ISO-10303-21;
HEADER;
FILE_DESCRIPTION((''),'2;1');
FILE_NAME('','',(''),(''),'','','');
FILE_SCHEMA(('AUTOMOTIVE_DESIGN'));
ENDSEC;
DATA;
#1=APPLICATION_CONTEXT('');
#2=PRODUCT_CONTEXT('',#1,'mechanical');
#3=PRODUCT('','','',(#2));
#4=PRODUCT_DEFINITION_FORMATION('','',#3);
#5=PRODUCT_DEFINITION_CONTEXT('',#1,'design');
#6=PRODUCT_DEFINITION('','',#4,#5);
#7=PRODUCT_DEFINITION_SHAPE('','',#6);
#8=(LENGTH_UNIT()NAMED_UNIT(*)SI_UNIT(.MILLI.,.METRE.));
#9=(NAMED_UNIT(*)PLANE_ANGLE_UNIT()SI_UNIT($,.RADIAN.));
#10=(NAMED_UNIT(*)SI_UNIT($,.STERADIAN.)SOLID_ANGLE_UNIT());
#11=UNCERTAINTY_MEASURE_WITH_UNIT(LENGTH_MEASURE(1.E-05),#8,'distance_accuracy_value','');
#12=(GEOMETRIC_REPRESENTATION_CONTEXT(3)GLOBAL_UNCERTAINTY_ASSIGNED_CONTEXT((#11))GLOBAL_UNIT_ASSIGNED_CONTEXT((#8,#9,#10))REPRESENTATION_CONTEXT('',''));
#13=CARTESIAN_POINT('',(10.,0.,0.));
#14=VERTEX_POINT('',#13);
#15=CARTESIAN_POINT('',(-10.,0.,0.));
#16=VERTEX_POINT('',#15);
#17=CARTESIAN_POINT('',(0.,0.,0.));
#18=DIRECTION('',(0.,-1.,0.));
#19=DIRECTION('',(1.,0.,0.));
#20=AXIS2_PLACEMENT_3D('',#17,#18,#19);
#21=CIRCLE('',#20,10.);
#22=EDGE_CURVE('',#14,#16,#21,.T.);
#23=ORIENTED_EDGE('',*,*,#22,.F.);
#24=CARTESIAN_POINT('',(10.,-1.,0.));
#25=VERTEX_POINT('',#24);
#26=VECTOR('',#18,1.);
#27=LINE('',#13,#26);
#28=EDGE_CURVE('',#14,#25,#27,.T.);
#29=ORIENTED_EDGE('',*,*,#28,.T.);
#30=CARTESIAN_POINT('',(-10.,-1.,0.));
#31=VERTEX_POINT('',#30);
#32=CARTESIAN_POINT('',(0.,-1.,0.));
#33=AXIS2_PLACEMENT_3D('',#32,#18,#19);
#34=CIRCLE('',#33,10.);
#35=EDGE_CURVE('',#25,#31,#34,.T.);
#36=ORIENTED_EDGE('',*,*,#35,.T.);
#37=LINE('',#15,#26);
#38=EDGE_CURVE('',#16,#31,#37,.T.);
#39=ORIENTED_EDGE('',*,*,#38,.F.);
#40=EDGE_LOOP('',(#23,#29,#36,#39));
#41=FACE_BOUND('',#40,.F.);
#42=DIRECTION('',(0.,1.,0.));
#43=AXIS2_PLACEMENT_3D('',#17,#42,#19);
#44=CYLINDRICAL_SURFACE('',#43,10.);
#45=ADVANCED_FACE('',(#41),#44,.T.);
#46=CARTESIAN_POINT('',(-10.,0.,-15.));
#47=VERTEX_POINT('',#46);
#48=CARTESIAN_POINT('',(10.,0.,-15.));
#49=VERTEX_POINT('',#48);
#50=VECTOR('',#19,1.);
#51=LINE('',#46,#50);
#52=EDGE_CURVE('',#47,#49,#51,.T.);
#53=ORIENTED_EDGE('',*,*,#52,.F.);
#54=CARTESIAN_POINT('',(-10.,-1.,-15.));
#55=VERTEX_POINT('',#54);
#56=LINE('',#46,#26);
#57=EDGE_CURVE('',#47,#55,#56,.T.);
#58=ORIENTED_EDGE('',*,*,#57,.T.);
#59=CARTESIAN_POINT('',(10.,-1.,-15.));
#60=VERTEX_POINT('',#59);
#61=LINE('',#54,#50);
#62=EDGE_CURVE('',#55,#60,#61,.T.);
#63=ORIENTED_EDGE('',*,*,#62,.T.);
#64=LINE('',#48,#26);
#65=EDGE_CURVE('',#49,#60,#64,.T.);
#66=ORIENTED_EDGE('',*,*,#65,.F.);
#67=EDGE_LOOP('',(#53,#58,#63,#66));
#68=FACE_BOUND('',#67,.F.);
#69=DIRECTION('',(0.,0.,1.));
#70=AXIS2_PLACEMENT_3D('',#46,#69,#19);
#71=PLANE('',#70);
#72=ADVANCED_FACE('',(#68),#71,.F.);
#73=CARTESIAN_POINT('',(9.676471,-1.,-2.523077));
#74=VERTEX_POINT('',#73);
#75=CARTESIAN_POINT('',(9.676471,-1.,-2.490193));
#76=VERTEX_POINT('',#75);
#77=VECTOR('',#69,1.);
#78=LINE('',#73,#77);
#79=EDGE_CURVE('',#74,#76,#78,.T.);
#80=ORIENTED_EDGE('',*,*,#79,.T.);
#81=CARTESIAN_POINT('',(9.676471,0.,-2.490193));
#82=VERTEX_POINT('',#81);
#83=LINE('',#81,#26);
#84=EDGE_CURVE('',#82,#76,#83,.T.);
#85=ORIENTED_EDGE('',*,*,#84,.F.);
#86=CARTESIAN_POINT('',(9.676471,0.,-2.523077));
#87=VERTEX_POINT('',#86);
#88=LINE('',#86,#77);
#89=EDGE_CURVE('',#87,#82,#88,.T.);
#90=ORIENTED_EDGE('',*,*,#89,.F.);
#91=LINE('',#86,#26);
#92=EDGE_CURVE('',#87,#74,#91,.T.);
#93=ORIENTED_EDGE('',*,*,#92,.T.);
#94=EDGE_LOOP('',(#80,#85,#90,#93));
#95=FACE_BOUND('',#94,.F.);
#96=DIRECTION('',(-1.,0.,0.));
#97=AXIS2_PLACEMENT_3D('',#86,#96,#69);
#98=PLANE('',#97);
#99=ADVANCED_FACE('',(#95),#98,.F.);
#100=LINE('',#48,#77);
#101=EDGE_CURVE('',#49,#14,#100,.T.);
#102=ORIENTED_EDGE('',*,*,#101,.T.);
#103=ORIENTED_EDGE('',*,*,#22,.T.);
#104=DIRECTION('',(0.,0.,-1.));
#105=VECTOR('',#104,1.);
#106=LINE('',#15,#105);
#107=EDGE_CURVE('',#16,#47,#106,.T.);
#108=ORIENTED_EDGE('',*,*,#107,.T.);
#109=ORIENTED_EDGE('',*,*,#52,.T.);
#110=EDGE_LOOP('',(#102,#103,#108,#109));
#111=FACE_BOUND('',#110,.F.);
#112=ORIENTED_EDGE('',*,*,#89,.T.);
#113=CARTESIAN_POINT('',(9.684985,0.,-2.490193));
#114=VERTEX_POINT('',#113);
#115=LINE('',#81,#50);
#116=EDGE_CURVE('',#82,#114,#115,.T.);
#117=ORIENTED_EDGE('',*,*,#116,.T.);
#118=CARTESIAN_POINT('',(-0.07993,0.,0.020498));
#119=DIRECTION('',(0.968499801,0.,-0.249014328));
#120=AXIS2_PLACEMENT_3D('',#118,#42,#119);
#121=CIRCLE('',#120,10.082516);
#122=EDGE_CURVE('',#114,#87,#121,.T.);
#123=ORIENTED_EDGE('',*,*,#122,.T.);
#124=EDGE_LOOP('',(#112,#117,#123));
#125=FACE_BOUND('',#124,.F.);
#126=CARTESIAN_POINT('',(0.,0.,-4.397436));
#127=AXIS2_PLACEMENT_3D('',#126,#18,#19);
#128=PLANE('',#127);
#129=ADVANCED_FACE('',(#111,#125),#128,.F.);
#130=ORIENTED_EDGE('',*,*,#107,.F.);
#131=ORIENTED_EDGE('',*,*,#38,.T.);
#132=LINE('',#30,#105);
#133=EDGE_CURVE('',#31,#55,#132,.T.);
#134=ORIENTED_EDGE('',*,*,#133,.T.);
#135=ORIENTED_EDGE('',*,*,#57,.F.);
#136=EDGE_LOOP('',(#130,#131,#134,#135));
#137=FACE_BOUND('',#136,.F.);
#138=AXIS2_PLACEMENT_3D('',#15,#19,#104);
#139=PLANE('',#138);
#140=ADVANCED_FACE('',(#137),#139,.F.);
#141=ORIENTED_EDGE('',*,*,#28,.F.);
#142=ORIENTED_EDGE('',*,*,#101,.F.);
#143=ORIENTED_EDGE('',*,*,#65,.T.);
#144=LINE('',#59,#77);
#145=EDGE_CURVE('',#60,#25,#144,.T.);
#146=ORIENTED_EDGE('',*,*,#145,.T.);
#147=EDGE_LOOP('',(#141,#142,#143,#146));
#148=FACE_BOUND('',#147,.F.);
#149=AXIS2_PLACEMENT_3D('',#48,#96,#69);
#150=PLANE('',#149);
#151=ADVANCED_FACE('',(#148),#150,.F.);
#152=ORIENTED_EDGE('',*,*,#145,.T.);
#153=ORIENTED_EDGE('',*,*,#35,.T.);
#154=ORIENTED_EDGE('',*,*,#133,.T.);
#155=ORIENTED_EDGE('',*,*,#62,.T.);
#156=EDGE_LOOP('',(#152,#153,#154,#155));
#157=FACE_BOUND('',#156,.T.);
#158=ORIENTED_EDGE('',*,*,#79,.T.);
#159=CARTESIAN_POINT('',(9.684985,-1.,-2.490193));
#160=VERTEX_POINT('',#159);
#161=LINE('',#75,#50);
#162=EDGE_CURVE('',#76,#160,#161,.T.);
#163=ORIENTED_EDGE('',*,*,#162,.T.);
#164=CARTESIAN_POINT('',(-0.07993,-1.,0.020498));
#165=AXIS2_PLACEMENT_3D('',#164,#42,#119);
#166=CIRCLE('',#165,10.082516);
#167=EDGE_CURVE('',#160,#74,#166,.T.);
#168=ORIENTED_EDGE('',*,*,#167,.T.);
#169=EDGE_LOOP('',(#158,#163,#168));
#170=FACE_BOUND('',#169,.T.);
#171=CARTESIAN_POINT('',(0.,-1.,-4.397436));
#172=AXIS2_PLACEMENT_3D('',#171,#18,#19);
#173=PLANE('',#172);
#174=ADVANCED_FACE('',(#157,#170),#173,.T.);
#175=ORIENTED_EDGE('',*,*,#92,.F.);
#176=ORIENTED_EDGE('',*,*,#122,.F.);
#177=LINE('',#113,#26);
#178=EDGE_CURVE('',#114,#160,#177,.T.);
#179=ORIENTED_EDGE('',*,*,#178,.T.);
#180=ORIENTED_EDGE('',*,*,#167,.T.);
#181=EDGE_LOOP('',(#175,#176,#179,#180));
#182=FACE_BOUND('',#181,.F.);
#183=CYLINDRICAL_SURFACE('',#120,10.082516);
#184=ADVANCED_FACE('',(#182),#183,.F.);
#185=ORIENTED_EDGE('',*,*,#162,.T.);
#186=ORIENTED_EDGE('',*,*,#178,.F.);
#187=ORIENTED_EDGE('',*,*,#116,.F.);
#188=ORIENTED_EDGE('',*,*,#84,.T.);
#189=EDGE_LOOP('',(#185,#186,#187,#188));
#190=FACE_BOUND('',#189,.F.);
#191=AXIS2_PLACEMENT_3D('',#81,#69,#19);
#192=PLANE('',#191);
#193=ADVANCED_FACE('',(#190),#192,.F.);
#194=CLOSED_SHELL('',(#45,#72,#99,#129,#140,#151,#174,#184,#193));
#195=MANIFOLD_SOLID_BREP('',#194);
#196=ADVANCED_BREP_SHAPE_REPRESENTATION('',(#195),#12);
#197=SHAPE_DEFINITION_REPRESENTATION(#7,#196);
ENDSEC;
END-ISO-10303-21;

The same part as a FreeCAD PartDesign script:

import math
import FreeCAD as App
import Part
import Sketcher
Q = App.Units.Quantity

doc = App.newDocument("Part")
body = doc.addObject("PartDesign::Body", "Body")

sketch1 = body.newObject("Sketcher::SketchObject", "Sketch")
sketch1.AttachmentSupport = (doc.getObject("XZ_Plane"), [""])
sketch1.MapMode = "FlatFace"
sketch1.addGeometry(Part.LineSegment(App.Vector(10, -15, 0), App.Vector(10, 0, 0)), False)
sketch1.addGeometry(Part.ArcOfCircle(Part.Circle(App.Vector(0, 0, 0), App.Vector(0, 0, 1), 10), math.radians(0), math.radians(180)), False)
sketch1.addGeometry(Part.LineSegment(App.Vector(-10, 0, 0), App.Vector(-10, -15, 0)), False)
sketch1.addGeometry(Part.LineSegment(App.Vector(-10, -15, 0), App.Vector(10, -15, 0)), False)
sketch1.addGeometry(Part.LineSegment(App.Vector(9.676, -2.49, 0), App.Vector(9.685, -2.49, 0)), False)
sketch1.addGeometry(Part.ArcOfCircle(Part.Circle(App.Vector(-0.08, 0.02, 0), App.Vector(0, 0, 1), 10.083), math.radians(-14.61), math.radians(-14.42)), False)
sketch1.addGeometry(Part.LineSegment(App.Vector(9.676, -2.523, 0), App.Vector(9.676, -2.49, 0)), False)
sketch1.addConstraint(Sketcher.Constraint("Tangent", 0, 2, 1, 1))
sketch1.addConstraint(Sketcher.Constraint("Tangent", 1, 2, 2, 1))
sketch1.addConstraint(Sketcher.Constraint("Coincident", 2, 2, 3, 1))
sketch1.addConstraint(Sketcher.Constraint("Coincident", 3, 2, 0, 1))
sketch1.addConstraint(Sketcher.Constraint("Coincident", 4, 2, 5, 2))
sketch1.addConstraint(Sketcher.Constraint("Coincident", 5, 1, 6, 1))
sketch1.addConstraint(Sketcher.Constraint("Coincident", 6, 2, 4, 1))
sketch1.addConstraint(Sketcher.Constraint("Vertical", 0))
sketch1.addConstraint(Sketcher.Constraint("Vertical", 2))
sketch1.addConstraint(Sketcher.Constraint("Horizontal", 3))
sketch1.addConstraint(Sketcher.Constraint("Horizontal", 4))
sketch1.addConstraint(Sketcher.Constraint("Vertical", 6))
sketch1.addConstraint(Sketcher.Constraint("Coincident", 1, 3, -1, 1))
sketch1.addConstraint(Sketcher.Constraint("Radius", 1, Q("10 mm")))
sketch1.addConstraint(Sketcher.Constraint("DistanceY", 0, 1, 0, 2, Q("15 mm")))
sketch1.addConstraint(Sketcher.Constraint("Radius", 5, Q("10.082516 mm")))
sketch1.addConstraint(Sketcher.Constraint("DistanceX", 5, 3, 5, 1, Q("9.756401 mm")))
sketch1.addConstraint(Sketcher.Constraint("DistanceX", 4, 1, 4, 2, Q("0.008514 mm")))
sketch1.addConstraint(Sketcher.Constraint("DistanceX", 5, 3, -1, 1, Q("0.07993 mm")))
sketch1.addConstraint(Sketcher.Constraint("DistanceY", -1, 1, 5, 3, Q("0.020498 mm")))
pad1 = body.newObject("PartDesign::Pad", "Pad")
pad1.Profile = sketch1
pad1.Length = 1

doc.recompute()
